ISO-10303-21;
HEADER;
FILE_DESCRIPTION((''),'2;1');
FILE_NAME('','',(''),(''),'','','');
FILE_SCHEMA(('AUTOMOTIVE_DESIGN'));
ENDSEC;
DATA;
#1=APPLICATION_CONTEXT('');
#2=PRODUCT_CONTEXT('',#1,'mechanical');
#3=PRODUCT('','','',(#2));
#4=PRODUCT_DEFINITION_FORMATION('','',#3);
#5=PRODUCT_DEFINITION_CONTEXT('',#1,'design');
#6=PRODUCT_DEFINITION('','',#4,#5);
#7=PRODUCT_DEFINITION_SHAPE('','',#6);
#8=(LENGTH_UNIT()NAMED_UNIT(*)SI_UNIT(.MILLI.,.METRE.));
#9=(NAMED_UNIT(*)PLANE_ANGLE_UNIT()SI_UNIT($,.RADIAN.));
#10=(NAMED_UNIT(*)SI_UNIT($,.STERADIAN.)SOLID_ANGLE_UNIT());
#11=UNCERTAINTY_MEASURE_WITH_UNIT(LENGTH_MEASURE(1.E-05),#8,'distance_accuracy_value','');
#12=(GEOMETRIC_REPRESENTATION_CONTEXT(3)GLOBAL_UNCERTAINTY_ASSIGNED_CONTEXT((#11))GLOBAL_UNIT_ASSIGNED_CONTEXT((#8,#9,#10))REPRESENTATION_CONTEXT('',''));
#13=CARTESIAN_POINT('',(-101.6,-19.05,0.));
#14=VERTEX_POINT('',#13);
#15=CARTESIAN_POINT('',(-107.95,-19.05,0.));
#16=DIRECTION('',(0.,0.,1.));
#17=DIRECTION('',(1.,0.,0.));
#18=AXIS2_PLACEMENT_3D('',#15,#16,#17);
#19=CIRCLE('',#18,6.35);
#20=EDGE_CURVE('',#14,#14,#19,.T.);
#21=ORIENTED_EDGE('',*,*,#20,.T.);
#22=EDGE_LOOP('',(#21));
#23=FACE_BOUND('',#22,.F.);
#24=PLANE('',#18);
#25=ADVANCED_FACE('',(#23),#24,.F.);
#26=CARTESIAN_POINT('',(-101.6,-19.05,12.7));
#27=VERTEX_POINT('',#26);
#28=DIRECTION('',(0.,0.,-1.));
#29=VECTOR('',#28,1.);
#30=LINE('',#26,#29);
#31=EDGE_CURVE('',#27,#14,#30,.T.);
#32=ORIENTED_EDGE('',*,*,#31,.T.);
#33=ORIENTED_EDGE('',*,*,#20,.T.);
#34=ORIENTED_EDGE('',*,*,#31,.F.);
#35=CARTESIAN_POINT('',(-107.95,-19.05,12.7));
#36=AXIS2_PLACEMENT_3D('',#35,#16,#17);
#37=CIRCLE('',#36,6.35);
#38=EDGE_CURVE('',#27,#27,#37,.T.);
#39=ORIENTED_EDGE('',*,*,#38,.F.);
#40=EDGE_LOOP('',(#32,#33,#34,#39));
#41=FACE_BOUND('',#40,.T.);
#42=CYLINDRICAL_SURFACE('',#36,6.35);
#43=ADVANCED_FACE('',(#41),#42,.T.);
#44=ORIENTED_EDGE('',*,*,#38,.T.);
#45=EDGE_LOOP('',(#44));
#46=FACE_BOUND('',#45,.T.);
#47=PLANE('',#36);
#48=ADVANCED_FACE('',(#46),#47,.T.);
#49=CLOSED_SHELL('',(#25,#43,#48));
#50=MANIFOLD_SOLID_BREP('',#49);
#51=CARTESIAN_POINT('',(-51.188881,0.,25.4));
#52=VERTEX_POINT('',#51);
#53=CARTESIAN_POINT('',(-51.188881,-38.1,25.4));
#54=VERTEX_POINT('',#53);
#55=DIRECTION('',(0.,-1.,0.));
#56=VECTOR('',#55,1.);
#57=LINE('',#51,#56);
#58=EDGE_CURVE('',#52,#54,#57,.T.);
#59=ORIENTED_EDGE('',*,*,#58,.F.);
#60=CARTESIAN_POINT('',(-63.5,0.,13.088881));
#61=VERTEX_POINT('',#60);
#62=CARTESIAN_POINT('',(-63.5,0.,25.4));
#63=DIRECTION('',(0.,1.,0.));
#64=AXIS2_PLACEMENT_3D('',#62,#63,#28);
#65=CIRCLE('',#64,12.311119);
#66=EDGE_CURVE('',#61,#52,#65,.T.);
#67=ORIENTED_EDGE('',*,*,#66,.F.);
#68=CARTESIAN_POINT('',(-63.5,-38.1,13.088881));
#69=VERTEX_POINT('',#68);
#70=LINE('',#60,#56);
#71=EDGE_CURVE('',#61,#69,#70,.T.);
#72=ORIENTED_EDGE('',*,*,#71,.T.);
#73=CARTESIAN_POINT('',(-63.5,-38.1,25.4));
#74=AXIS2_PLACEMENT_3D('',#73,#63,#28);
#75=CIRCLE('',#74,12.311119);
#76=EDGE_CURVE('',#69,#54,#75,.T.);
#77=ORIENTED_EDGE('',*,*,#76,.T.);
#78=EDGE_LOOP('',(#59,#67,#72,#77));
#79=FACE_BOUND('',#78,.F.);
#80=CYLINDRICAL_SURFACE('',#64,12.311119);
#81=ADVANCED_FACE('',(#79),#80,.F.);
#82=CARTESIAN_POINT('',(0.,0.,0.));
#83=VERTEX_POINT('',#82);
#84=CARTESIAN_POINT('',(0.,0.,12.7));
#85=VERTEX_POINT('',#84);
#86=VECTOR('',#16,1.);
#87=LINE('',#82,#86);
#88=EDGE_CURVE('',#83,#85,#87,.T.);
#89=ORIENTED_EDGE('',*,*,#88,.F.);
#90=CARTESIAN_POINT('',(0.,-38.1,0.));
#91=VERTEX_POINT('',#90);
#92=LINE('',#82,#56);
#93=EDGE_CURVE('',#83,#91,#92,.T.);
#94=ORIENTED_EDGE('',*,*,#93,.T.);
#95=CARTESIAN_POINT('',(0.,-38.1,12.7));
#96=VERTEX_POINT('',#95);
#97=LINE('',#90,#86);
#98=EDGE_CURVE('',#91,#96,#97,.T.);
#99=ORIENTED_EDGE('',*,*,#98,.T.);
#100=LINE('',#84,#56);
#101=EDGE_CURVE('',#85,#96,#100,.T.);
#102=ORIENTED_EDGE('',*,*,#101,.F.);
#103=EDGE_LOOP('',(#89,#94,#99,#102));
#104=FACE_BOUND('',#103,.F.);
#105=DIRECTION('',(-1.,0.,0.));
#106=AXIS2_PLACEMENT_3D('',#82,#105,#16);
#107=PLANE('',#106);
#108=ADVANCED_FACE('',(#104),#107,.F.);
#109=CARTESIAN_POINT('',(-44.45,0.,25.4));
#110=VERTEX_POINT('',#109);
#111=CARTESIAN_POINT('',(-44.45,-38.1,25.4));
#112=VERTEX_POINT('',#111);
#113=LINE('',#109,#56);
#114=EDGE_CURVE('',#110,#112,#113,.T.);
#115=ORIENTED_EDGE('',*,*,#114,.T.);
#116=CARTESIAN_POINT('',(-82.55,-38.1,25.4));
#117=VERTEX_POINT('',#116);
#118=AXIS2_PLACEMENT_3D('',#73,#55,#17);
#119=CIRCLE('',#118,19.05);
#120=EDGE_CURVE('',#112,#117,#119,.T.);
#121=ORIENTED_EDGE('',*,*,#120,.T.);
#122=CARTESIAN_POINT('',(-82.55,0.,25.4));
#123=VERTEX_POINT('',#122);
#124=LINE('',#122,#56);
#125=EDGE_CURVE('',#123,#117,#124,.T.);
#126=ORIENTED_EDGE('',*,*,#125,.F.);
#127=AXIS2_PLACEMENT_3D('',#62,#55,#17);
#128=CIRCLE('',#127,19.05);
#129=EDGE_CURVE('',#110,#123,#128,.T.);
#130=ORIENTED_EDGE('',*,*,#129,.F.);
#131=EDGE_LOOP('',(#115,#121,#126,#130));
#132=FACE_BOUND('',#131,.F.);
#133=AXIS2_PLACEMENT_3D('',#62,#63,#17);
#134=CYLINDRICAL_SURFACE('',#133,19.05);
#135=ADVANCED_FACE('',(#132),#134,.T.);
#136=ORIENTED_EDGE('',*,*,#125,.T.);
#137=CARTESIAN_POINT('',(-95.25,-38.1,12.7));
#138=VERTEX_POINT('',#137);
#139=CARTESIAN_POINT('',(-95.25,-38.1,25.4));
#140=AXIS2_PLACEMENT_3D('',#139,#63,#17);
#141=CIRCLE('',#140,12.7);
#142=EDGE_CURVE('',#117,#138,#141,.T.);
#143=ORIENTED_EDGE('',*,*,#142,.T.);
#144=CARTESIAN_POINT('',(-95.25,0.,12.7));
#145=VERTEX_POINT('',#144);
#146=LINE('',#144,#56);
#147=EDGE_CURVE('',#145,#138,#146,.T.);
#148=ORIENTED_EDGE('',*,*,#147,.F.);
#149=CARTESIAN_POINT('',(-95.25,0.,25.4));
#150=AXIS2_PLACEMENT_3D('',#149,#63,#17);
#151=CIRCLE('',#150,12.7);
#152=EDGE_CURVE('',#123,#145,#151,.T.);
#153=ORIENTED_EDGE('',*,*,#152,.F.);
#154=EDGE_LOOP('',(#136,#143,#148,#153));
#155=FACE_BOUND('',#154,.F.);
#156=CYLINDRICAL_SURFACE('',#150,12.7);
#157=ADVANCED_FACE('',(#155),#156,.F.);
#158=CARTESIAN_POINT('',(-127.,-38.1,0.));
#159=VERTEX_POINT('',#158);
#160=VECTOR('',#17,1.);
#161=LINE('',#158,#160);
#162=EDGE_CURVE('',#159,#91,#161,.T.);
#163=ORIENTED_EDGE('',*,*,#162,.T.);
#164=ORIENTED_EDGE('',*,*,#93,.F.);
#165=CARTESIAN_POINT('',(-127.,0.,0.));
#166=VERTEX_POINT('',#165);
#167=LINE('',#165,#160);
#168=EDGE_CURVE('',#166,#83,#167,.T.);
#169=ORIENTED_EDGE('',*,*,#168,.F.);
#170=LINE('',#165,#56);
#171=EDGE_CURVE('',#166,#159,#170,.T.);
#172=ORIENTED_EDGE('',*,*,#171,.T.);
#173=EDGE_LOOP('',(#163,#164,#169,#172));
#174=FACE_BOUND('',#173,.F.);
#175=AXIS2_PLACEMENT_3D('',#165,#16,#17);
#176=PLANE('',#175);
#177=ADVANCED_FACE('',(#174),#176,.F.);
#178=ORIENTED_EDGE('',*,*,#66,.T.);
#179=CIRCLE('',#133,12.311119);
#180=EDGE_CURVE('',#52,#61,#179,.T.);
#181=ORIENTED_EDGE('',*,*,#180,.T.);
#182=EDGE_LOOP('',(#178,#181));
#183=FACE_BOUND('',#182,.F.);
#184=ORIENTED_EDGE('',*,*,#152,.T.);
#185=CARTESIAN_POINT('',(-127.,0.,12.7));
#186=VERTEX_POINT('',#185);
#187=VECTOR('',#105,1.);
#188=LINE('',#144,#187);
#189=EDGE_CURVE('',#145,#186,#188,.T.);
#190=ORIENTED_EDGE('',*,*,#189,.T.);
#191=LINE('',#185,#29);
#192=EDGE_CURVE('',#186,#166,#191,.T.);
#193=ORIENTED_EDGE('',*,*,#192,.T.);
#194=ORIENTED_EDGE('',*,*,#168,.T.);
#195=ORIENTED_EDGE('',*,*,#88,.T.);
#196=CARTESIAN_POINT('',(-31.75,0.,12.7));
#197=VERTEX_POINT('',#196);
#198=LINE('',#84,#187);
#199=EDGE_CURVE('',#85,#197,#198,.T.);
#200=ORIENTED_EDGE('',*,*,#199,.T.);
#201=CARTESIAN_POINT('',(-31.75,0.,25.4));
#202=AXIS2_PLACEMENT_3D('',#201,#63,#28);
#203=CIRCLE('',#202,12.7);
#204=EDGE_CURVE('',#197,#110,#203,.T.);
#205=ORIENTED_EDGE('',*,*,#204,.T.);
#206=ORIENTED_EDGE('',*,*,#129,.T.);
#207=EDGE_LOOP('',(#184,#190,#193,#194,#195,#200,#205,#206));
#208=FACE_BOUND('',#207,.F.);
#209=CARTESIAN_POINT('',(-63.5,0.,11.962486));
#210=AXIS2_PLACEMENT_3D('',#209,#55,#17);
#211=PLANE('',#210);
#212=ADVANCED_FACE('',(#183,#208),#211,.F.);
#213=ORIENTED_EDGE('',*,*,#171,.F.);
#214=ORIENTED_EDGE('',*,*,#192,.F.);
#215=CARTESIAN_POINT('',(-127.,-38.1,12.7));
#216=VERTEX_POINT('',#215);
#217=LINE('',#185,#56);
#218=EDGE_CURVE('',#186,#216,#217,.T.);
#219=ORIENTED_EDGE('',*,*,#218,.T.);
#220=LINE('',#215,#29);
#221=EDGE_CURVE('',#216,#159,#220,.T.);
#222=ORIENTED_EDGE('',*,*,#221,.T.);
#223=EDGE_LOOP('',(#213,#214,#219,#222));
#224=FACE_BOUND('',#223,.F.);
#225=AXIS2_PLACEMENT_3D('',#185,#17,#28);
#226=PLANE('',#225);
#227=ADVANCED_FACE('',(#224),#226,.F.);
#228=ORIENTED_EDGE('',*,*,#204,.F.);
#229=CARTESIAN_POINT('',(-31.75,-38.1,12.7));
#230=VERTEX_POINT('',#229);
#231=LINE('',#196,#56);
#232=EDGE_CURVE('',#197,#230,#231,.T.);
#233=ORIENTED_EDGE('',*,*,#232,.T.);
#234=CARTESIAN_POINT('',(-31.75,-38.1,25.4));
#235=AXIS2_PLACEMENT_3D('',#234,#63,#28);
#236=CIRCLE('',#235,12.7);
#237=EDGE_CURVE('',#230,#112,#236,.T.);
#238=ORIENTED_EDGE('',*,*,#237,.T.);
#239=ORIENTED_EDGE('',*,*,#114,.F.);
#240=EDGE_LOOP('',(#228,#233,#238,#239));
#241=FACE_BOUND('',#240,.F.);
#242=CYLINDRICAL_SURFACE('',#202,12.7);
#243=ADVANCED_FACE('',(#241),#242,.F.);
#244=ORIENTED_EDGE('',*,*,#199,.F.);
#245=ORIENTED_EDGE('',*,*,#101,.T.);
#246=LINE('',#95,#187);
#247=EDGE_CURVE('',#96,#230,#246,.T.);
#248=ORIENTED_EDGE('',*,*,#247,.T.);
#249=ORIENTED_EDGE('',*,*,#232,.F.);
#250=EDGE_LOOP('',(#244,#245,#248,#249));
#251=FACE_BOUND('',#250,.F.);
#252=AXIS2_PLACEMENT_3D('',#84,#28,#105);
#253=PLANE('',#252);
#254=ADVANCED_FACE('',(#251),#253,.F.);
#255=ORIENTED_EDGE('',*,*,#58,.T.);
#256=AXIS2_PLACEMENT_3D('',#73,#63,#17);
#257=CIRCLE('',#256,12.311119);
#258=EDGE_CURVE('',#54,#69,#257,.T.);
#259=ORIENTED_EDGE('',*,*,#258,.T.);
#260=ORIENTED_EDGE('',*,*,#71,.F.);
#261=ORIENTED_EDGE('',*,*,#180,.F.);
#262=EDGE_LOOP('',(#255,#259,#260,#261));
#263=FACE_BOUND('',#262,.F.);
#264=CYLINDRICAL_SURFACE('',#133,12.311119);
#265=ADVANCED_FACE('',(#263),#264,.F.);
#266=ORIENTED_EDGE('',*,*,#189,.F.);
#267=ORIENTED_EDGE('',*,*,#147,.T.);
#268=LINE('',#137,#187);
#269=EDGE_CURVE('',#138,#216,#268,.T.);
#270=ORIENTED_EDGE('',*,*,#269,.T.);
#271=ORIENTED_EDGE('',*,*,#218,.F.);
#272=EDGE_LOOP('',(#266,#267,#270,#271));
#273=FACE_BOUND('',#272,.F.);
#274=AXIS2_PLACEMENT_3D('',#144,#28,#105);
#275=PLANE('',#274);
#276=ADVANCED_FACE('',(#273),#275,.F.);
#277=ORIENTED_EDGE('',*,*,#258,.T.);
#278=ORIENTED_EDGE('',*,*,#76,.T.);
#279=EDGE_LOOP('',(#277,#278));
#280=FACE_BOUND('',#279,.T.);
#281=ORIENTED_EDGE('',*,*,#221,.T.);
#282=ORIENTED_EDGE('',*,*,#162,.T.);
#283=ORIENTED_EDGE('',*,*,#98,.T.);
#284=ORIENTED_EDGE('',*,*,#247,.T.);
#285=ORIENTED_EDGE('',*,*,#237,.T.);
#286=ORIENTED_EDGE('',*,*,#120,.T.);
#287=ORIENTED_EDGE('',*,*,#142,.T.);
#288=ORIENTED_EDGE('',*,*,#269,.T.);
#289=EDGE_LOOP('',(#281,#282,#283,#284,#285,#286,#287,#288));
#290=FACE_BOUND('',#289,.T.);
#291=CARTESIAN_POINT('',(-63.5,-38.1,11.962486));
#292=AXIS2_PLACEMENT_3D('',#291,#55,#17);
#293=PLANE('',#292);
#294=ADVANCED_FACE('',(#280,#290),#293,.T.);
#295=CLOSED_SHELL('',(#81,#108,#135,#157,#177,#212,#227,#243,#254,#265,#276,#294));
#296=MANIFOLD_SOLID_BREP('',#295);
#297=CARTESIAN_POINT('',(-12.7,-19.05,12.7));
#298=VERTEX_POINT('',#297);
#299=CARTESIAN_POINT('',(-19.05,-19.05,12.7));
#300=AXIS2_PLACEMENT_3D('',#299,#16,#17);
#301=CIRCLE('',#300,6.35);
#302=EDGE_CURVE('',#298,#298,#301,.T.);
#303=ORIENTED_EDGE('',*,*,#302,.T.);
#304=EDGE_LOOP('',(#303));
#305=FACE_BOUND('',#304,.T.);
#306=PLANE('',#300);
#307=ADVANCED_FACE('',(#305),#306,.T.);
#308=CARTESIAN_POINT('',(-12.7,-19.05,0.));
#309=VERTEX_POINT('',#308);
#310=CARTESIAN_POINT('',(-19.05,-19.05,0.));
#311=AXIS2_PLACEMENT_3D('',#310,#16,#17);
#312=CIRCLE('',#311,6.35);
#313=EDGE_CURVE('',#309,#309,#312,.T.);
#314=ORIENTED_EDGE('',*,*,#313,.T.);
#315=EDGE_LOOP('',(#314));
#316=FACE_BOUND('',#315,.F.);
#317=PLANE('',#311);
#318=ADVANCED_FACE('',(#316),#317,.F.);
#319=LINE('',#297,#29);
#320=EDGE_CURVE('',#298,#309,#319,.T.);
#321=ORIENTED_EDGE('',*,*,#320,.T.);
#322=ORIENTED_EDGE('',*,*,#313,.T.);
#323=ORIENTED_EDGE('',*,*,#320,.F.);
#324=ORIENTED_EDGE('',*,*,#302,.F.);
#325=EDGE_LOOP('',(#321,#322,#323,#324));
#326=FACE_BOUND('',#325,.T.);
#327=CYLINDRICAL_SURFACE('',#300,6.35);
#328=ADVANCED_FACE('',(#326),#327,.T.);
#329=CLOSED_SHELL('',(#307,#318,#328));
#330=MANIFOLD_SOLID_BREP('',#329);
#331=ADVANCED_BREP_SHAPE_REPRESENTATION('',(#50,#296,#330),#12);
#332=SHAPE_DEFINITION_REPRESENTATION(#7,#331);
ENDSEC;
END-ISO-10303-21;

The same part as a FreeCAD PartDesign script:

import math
import FreeCAD as App
import Part
import Sketcher
from FreeCAD import Vector
Q = App.Units.Quantity

doc = App.newDocument("Part")
body = doc.addObject("PartDesign::Body", "Body")

# Sketch on XZ plane
sketch1 = doc.addObject("Sketcher::SketchObject", "Sketch")
body.addObject(sketch1)
sketch1.AttachmentSupport = (doc.XZ_Plane, [""])
sketch1.MapMode = "FlatFace"
sketch1.addGeometry([
    Part.LineSegment(Vector(-127, 12.7, 0), Vector(-127, 0, 0)),  # 0
    Part.LineSegment(Vector(-127, 0, 0), Vector(0, 0, 0)),  # 1
    Part.LineSegment(Vector(0, 0, 0), Vector(0, 12.7, 0)),  # 2
    Part.LineSegment(Vector(0, 12.7, 0), Vector(-31.75, 12.7, 0)),  # 3
    Part.ArcOfCircle(Part.Circle(Vector(-31.75, 25.4, 0), Vector(0, 0, 1), 12.7), math.radians(180), math.radians(270)),  # 4
    Part.ArcOfCircle(Part.Circle(Vector(-63.5, 25.4, 0), Vector(0, 0, 1), 19.05), math.radians(0), math.radians(180)),  # 5
    Part.ArcOfCircle(Part.Circle(Vector(-95.25, 25.4, 0), Vector(0, 0, 1), 12.7), math.radians(-90), math.radians(0)),  # 6
    Part.LineSegment(Vector(-95.25, 12.7, 0), Vector(-127, 12.7, 0)),  # 7
    Part.ArcOfCircle(Part.Circle(Vector(-63.5, 25.4, 0), Vector(0, 0, 1), 12.311119), math.radians(0), math.radians(270)),  # 8
    Part.ArcOfCircle(Part.Circle(Vector(-63.5, 25.4, 0), Vector(0, 0, 1), 12.311119), math.radians(-90), math.radians(0)),  # 9
], False)
sketch1.addConstraint([
    Sketcher.Constraint("Coincident", 0, 2, 1, 1),
    Sketcher.Constraint("Coincident", 1, 2, 2, 1),
    Sketcher.Constraint("Coincident", 2, 2, 3, 1),
    Sketcher.Constraint("Tangent", 3, 2, 4, 2),
    Sketcher.Constraint("Tangent", 4, 1, 5, 1),
    Sketcher.Constraint("Tangent", 5, 2, 6, 2),
    Sketcher.Constraint("Tangent", 6, 1, 7, 1),
    Sketcher.Constraint("Coincident", 7, 2, 0, 1),
    Sketcher.Constraint("Tangent", 8, 1, 9, 2),
    Sketcher.Constraint("Coincident", 9, 1, 8, 2),
    Sketcher.Constraint("Vertical", 0),
    Sketcher.Constraint("Horizontal", 1),
    Sketcher.Constraint("Vertical", 2),
    Sketcher.Constraint("Horizontal", 3),
    Sketcher.Constraint("Horizontal", 7),
    Sketcher.Constraint("Coincident", 1, 2, -1, 1),
    Sketcher.Constraint("Coincident", 8, 3, 5, 3),
    Sketcher.Constraint("Equal", 4, 6),
    Sketcher.Constraint("Horizontal", 4, 3, 5, 3),
    Sketcher.Constraint("Horizontal", 5, 3, 6, 3),
    Sketcher.Constraint("Horizontal", 5, 2, 8, 1),
    Sketcher.Constraint("Vertical", 8, 3, 9, 1),
    Sketcher.Constraint("Equal", 3, 7),
    Sketcher.Constraint("Radius", 4, Q("0.5 in")),
    Sketcher.Constraint("DistanceX", 1, 1, 1, 2, Q("5 in")),
    Sketcher.Constraint("Radius", 5, Q("0.75 in")),
    Sketcher.Constraint("DistanceY", 0, 2, 0, 1, Q("0.5 in")),
    Sketcher.Constraint("Radius", 8, 12.311119),
])
pad1 = doc.addObject("PartDesign::Pad", "Pad")
body.addObject(pad1)
pad1.Profile = sketch1
pad1.Length = Q("1.5 in")
body2 = doc.addObject("PartDesign::Body", "Body001")

# Sketch on XY plane
sketch2 = doc.addObject("Sketcher::SketchObject", "Sketch001")
body2.addObject(sketch2)
sketch2.AttachmentSupport = (doc.getObject("XY_Plane001"), [""])
sketch2.MapMode = "FlatFace"
sketch2.AttachmentOffset = App.Placement(Vector(0, 0, 0.5 * 25.4), App.Rotation())
sketch2.addGeometry(Part.Circle(Vector(-107.95, -19.05, 0), Vector(0, 0, 1), 6.35), False)
sketch2.addConstraint([
    Sketcher.Constraint("Diameter", 0, Q("0.5 in")),
    Sketcher.Constraint("DistanceX", 0, 3, -1, 1, Q("4.25 in")),
    Sketcher.Constraint("DistanceY", 0, 3, -1, 1, Q("0.75 in")),
])
pad2 = doc.addObject("PartDesign::Pad", "Pad001")
body2.addObject(pad2)
pad2.Profile = sketch2
pad2.Length = Q("0.5 in")
pad2.Reversed = True
body3 = doc.addObject("PartDesign::Body", "Body002")

# Sketch on XY plane
sketch3 = doc.addObject("Sketcher::SketchObject", "Sketch002")
body3.addObject(sketch3)
sketch3.AttachmentSupport = (doc.getObject("XY_Plane002"), [""])
sketch3.MapMode = "FlatFace"
sketch3.AttachmentOffset = App.Placement(Vector(0, 0, 0.5 * 25.4), App.Rotation())
sketch3.addGeometry(Part.Circle(Vector(-19.05, -19.05, 0), Vector(0, 0, 1), 6.35), False)
sketch3.addConstraint([
    Sketcher.Constraint("Diameter", 0, Q("0.5 in")),
    Sketcher.Constraint("DistanceX", 0, 3, -1, 1, Q("0.75 in")),
    Sketcher.Constraint("DistanceY", 0, 3, -1, 1, Q("0.75 in")),
])
pad3 = doc.addObject("PartDesign::Pad", "Pad002")
body3.addObject(pad3)
pad3.Profile = sketch3
pad3.Length = Q("0.5 in")
pad3.Reversed = True

doc.recompute()
